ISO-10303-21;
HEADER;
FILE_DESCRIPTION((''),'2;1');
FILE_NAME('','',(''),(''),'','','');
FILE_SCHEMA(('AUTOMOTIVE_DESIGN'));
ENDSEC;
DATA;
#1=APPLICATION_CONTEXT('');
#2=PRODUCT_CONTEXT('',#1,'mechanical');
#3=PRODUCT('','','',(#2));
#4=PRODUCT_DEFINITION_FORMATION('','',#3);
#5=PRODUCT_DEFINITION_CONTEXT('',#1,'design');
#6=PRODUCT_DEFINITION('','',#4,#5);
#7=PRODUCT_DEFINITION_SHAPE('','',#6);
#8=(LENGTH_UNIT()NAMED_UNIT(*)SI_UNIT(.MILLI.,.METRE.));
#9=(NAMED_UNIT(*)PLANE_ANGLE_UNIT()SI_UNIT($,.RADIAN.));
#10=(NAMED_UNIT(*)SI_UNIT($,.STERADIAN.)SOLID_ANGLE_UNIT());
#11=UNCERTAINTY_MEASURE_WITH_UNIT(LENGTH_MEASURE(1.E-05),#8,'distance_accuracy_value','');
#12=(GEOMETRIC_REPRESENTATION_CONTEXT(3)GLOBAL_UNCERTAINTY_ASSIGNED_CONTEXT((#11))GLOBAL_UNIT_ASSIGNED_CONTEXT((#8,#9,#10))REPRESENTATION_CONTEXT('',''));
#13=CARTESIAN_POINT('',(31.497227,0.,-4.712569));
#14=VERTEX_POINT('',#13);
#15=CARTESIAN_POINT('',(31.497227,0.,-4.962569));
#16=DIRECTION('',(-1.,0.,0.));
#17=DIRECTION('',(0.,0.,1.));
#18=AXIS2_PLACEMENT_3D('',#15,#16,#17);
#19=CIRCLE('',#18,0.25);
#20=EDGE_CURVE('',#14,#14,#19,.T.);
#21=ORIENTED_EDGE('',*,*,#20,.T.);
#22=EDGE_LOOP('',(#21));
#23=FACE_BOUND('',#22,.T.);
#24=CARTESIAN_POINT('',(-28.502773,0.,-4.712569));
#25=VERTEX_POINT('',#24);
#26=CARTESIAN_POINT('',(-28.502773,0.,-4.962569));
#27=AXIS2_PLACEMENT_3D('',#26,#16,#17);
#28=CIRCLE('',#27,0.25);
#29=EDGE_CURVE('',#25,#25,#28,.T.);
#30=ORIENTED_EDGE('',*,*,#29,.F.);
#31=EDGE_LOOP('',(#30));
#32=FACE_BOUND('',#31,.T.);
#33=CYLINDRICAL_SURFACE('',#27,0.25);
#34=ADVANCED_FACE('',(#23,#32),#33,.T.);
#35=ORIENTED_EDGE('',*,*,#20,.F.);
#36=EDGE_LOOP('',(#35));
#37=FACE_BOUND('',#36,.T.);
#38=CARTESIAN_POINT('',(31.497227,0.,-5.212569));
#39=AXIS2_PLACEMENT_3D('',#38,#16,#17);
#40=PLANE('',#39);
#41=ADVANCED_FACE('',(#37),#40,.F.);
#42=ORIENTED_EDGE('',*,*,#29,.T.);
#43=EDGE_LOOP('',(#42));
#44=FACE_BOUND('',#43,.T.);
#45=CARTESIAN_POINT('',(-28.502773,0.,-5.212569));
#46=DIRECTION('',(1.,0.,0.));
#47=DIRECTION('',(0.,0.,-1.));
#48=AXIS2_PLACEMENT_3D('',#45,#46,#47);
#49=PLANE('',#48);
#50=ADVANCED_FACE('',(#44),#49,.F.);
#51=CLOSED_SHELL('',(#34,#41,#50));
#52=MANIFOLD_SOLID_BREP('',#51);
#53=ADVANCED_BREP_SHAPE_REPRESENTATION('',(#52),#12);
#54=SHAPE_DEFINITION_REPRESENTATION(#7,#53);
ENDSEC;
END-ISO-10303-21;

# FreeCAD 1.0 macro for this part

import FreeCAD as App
import Part
import Sketcher
from FreeCAD import Vector
Q = App.Units.Quantity


def add_polygon(sketch, points):
    """Adds a closed chain of lines whose ends are joined by coincident constraints."""
    first, n = sketch.GeometryCount, len(points)
    for a, b in zip(points, points[1:] + points[:1]):
        sketch.addGeometry(Part.LineSegment(App.Vector(*a, 0), App.Vector(*b, 0)), False)
    for i in range(n):
        sketch.addConstraint(Sketcher.Constraint("Coincident", first + i, 2, first + (i + 1) % n, 1))

doc = App.newDocument("Part")
body = doc.addObject("PartDesign::Body", "Body")

# Sketch on XZ plane
sketch1 = body.newObject("Sketcher::SketchObject", "Sketch")
sketch1.AttachmentSupport = (doc.getObject("XZ_Plane"), [""])
sketch1.MapMode = "FlatFace"
add_polygon(sketch1, [(-28.5, -5.21), (-28.5, -4.96), (31.5, -4.96), (31.5, -5.21)])  # lines 0-3
sketch1.addGeometry(Part.LineSegment(Vector(-28.5, -4.96, 0), Vector(31.5, -4.96, 0)), True)  # axis
sketch1.addConstraint([
    Sketcher.Constraint("Vertical", 0),
    Sketcher.Constraint("Horizontal", 1),
    Sketcher.Constraint("Vertical", 2),
    Sketcher.Constraint("Horizontal", 3),
    Sketcher.Constraint("Horizontal", 4),
    Sketcher.Constraint("Coincident", 4, 1, 0, 2),
    Sketcher.Constraint("Vertical", 2, 2, 4, 2),
    Sketcher.Constraint("DistanceX", 1, 1, 1, 2, Q("60 mm")),
    Sketcher.Constraint("DistanceY", 0, 1, 0, 2, Q("0.25 mm")),
    Sketcher.Constraint("DistanceY", 0, 2, -1, 1, Q("4.962569 mm")),
    Sketcher.Constraint("DistanceX", 0, 2, -1, 1, Q("28.502773 mm")),
])
revolution = body.newObject("PartDesign::Revolution", "Revolution")
revolution.Profile = sketch1
revolution.ReferenceAxis = (sketch1, ["Axis0"])
revolution.Angle = 360

doc.recompute()
